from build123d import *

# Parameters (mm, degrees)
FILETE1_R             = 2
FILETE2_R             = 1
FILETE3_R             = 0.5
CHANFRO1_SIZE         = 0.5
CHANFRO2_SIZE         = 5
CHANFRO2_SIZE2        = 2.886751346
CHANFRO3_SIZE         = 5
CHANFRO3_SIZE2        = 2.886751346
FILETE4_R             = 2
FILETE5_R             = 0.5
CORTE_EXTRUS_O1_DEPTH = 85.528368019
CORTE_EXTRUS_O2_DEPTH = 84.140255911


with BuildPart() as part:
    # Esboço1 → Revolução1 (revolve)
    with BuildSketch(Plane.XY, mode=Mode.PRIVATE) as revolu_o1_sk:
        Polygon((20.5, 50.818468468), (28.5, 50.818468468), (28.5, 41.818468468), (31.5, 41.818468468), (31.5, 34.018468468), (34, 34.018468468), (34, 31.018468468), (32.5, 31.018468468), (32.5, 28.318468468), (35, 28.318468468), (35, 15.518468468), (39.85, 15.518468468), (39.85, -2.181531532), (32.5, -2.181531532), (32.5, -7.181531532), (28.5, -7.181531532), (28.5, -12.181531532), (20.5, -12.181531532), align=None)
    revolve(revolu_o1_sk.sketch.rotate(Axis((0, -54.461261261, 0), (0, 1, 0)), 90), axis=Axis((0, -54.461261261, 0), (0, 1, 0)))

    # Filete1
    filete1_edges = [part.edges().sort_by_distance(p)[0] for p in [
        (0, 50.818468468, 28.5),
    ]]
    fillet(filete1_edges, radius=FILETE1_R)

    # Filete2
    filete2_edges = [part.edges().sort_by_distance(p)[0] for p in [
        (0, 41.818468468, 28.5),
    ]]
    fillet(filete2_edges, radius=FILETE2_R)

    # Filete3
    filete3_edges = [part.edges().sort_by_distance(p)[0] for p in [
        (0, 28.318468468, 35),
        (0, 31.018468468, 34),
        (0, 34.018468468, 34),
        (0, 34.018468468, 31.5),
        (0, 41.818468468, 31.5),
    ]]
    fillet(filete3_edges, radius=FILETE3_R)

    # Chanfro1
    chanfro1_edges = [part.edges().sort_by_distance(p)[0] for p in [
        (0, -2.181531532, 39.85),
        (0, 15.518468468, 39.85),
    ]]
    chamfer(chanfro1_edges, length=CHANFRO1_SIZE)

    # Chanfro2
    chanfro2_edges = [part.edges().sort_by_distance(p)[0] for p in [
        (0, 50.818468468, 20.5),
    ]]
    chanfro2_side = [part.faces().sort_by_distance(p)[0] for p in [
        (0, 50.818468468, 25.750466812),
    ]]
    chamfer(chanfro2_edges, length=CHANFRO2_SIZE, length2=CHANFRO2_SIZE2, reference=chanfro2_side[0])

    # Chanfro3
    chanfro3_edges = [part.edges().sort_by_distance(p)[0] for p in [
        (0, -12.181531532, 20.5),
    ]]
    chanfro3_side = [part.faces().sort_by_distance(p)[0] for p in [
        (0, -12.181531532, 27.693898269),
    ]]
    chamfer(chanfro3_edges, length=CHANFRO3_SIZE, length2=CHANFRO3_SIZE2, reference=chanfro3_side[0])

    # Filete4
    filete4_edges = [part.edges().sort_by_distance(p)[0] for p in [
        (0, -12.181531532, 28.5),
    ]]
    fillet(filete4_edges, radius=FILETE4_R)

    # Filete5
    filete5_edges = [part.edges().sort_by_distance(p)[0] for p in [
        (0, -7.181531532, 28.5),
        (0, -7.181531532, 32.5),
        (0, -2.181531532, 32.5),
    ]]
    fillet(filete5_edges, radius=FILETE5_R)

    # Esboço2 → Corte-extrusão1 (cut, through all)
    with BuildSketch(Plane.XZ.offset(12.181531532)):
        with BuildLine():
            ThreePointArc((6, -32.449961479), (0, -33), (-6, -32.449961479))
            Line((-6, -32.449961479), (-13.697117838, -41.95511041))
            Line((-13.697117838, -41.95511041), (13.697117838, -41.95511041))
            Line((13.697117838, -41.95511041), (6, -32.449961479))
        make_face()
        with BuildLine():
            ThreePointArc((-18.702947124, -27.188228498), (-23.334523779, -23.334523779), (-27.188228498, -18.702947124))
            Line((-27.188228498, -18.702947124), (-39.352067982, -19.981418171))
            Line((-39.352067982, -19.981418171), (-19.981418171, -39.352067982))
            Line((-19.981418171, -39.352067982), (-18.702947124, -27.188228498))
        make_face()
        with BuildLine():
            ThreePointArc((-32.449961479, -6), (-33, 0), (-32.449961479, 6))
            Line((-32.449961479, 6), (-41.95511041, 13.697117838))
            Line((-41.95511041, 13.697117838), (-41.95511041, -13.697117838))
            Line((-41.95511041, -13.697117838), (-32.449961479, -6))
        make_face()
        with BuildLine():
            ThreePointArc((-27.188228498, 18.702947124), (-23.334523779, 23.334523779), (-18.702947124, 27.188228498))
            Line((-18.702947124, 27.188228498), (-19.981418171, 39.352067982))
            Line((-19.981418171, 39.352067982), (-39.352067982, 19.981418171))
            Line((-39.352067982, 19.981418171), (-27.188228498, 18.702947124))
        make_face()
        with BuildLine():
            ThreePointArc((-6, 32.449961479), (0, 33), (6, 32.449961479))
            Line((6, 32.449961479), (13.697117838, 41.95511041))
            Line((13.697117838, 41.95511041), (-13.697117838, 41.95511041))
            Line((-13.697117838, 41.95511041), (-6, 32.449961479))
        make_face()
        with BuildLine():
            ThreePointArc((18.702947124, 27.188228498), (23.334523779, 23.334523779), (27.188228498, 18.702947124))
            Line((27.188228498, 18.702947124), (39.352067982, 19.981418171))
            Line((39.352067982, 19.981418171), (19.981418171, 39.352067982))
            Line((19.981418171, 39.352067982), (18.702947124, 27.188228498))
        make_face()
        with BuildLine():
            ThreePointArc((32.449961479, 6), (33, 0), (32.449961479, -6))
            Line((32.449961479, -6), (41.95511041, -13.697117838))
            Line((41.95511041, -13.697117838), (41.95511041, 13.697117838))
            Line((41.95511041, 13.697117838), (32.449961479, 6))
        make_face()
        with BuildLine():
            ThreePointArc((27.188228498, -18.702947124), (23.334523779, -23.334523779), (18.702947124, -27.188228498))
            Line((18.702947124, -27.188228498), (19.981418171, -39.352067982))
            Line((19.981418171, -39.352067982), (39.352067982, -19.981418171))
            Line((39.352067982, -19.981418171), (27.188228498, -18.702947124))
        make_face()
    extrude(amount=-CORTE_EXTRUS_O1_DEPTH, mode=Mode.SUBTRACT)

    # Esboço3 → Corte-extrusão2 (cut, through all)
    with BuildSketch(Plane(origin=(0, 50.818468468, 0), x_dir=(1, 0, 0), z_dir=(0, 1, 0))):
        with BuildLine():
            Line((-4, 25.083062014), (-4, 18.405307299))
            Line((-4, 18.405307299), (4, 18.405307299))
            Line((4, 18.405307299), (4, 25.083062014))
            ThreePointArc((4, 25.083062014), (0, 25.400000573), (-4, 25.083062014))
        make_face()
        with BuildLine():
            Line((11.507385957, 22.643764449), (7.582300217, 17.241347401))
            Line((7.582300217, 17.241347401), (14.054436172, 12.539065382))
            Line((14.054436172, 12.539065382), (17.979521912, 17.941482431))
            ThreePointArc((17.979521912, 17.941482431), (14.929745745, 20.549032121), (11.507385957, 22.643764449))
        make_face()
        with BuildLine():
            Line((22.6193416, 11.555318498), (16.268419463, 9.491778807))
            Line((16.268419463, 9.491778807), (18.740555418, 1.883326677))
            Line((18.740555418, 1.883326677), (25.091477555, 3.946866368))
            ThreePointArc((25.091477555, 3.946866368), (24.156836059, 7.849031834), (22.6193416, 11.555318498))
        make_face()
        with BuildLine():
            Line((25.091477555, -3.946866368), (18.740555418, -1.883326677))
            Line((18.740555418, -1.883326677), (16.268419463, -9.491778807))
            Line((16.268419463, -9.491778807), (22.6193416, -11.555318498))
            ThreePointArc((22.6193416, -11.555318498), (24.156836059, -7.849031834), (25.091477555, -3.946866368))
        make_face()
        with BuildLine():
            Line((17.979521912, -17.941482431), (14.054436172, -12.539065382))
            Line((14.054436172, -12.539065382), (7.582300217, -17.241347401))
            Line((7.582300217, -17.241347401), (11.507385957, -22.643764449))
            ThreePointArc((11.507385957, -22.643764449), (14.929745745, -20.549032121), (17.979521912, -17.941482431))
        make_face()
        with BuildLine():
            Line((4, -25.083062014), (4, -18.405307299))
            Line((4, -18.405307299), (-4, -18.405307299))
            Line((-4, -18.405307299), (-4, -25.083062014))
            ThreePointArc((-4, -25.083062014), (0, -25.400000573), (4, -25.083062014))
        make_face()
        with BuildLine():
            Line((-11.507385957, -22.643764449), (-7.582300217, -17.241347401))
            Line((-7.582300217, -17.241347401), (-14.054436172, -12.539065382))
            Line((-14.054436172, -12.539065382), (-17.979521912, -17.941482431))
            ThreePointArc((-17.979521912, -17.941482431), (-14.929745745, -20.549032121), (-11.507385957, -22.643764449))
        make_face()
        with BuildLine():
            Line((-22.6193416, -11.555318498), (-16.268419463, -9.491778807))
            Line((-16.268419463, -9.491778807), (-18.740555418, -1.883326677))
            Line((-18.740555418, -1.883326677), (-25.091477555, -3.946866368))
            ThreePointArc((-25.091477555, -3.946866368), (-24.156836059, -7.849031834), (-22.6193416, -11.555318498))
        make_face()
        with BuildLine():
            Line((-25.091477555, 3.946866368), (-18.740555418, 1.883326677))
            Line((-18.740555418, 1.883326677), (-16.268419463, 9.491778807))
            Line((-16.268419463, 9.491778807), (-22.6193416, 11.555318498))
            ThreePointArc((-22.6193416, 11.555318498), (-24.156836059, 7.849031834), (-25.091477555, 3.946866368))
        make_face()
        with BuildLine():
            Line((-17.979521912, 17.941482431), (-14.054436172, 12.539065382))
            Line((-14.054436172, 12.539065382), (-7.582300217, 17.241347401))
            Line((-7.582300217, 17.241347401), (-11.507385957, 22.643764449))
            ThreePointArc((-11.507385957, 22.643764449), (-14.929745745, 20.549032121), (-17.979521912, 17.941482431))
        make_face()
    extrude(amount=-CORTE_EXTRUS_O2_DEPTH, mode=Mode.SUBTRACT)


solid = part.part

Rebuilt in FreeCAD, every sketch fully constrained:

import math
import FreeCAD as App
import Part
import Sketcher

V = App.Vector
Q = App.Units.Quantity


def edges_at(feature, points):
    """Names of the edges that pass closest to the given points."""
    edges = feature.Shape.Edges
    near = lambda p: min(range(len(edges)), key=lambda i: edges[i].distToShape(Part.Vertex(*p))[0])
    return sorted({f"Edge{near(p) + 1}" for p in points})


def add_polygon(sketch, points):
    """Adds a closed chain of lines whose ends are joined by coincident constraints."""
    first, n = sketch.GeometryCount, len(points)
    for a, b in zip(points, points[1:] + points[:1]):
        sketch.addGeometry(Part.LineSegment(App.Vector(*a, 0), App.Vector(*b, 0)), False)
    for i in range(n):
        sketch.addConstraint(Sketcher.Constraint("Coincident", first + i, 2, first + (i + 1) % n, 1))

doc = App.newDocument("Part")
body = doc.addObject("PartDesign::Body", "Body")

# Sketch on XY plane
sketch1 = body.newObject("Sketcher::SketchObject", "Sketch")
sketch1.AttachmentSupport = (doc.getObject("XY_Plane"), [""])
sketch1.MapMode = "FlatFace"
add_polygon(sketch1, [(28.5, 50.8), (20.5, 50.8), (20.5, -12.2), (28.5, -12.2), (28.5, -7.2), (32.5, -7.2), (32.5, -2.2), (39.9, -2.2), (39.9, 15.5), (35, 15.5), (35, 28.3), (32.5, 28.3), (32.5, 31), (34, 31), (34, 34), (31.5, 34), (31.5, 41.8), (28.5, 41.8)])  # lines 0-17
sketch1.addConstraint(Sketcher.Constraint("Horizontal", 0))
sketch1.addConstraint(Sketcher.Constraint("Vertical", 1))
sketch1.addConstraint(Sketcher.Constraint("Horizontal", 2))
sketch1.addConstraint(Sketcher.Constraint("Vertical", 3))
sketch1.addConstraint(Sketcher.Constraint("Horizontal", 4))
sketch1.addConstraint(Sketcher.Constraint("Vertical", 5))
sketch1.addConstraint(Sketcher.Constraint("Horizontal", 6))
sketch1.addConstraint(Sketcher.Constraint("Vertical", 7))
sketch1.addConstraint(Sketcher.Constraint("Horizontal", 8))
sketch1.addConstraint(Sketcher.Constraint("Vertical", 9))
sketch1.addConstraint(Sketcher.Constraint("Horizontal", 10))
sketch1.addConstraint(Sketcher.Constraint("Vertical", 11))
sketch1.addConstraint(Sketcher.Constraint("Horizontal", 12))
sketch1.addConstraint(Sketcher.Constraint("Vertical", 13))
sketch1.addConstraint(Sketcher.Constraint("Horizontal", 14))
sketch1.addConstraint(Sketcher.Constraint("Vertical", 15))
sketch1.addConstraint(Sketcher.Constraint("Horizontal", 16))
sketch1.addConstraint(Sketcher.Constraint("Vertical", 17))
sketch1.addConstraint(Sketcher.Constraint("Vertical", 5, 2, 10, 2))
sketch1.addConstraint(Sketcher.Constraint("Vertical", 3, 2, 16, 2))
sketch1.addConstraint(Sketcher.Constraint("Equal", 10, 14))
sketch1.addConstraint(Sketcher.Constraint("Equal", 3, 5))
sketch1.addConstraint(Sketcher.Constraint("Equal", 16, 13))
sketch1.addConstraint(Sketcher.Constraint("DistanceX", 0, 2, 0, 1, Q("8 mm")))
sketch1.addConstraint(Sketcher.Constraint("DistanceX", 4, 1, 4, 2, Q("4 mm")))
sketch1.addConstraint(Sketcher.Constraint("DistanceX", 16, 2, 16, 1, Q("3 mm")))
sketch1.addConstraint(Sketcher.Constraint("DistanceY", 1, 2, 1, 1, Q("63 mm")))
sketch1.addConstraint(Sketcher.Constraint("DistanceY", 3, 1, 3, 2, Q("5 mm")))
sketch1.addConstraint(Sketcher.Constraint("DistanceY", 17, 1, 17, 2, Q("9 mm")))
sketch1.addConstraint(Sketcher.Constraint("DistanceX", 10, 2, 10, 1, Q("2.5 mm")))
sketch1.addConstraint(Sketcher.Constraint("DistanceY", 7, 1, 7, 2, Q("17.7 mm")))
sketch1.addConstraint(Sketcher.Constraint("DistanceY", 9, 1, 9, 2, Q("12.8 mm")))
sketch1.addConstraint(Sketcher.Constraint("DistanceY", 11, 1, 11, 2, Q("2.7 mm")))
sketch1.addConstraint(Sketcher.Constraint("DistanceX", -1, 1, 8, 2, Q("35 mm")))
sketch1.addConstraint(Sketcher.Constraint("DistanceX", 6, 1, 6, 2, Q("7.35 mm")))
sketch1.addConstraint(Sketcher.Constraint("DistanceY", -1, 1, 0, 2, Q("50.818468 mm")))
revolution = body.newObject("PartDesign::Revolution", "Revolution")
revolution.Profile = sketch1
revolution.ReferenceAxis = (sketch1, ["V_Axis"])
revolution.Angle = 360
doc.recompute()

fillet = body.newObject("PartDesign::Fillet", "Fillet")
fillet.Base = (revolution, edges_at(revolution, [(0, 50.818, 28.5)]))
fillet.Radius = 2
doc.recompute()

fillet2 = body.newObject("PartDesign::Fillet", "Fillet001")
fillet2.Base = (fillet, edges_at(fillet, [(0, 41.818, 28.5)]))
fillet2.Radius = 1
doc.recompute()

fillet3 = body.newObject("PartDesign::Fillet", "Fillet002")
fillet3.Base = (fillet2, edges_at(fillet2, [
    (0, 28.318, 35),
    (0, 31.018, 34),
    (0, 34.018, 34),
    (0, 34.018, 31.5),
    (0, 41.818, 31.5),
]))
fillet3.Radius = 0.5
doc.recompute()

chamfer = body.newObject("PartDesign::Chamfer", "Chamfer")
chamfer.Base = (fillet3, edges_at(fillet3, [(0, -2.182, 39.85), (0, 15.518, 39.85)]))
chamfer.Size = 0.5
doc.recompute()

chamfer2 = body.newObject("PartDesign::Chamfer", "Chamfer001")
chamfer2.Base = (chamfer, edges_at(chamfer, [(0, 50.818, 20.5)]))
chamfer2.ChamferType = "Two distances"
chamfer2.Size = 5
chamfer2.Size2 = 2.886751
chamfer2.FlipDirection = True
doc.recompute()

chamfer3 = body.newObject("PartDesign::Chamfer", "Chamfer002")
chamfer3.Base = (chamfer2, edges_at(chamfer2, [(0, -12.182, 20.5)]))
chamfer3.ChamferType = "Two distances"
chamfer3.Size = 5
chamfer3.Size2 = 2.886751
chamfer3.FlipDirection = True
doc.recompute()

fillet4 = body.newObject("PartDesign::Fillet", "Fillet003")
fillet4.Base = (chamfer3, edges_at(chamfer3, [(0, -12.182, 28.5)]))
fillet4.Radius = 2
doc.recompute()

fillet5 = body.newObject("PartDesign::Fillet", "Fillet004")
fillet5.Base = (fillet4, edges_at(fillet4, [(0, -7.182, 28.5), (0, -7.182, 32.5), (0, -2.182, 32.5)]))
fillet5.Radius = 0.5

# Sketch on XZ plane
sketch2 = body.newObject("Sketcher::SketchObject", "Sketch001")
sketch2.AttachmentSupport = (doc.getObject("XZ_Plane"), [""])
sketch2.MapMode = "FlatFace"
sketch2.AttachmentOffset = App.Placement(V(0, 0, 12.181532), App.Rotation())
sketch2.addGeometry(Part.ArcOfCircle(Part.Circle(V(0, 0, 0), V(0, 0, 1), 33), math.radians(-100), math.radians(-80)), False)
sketch2.addGeometry(Part.LineSegment(V(-6, -32, 0), V(-14, -42, 0)), False)
sketch2.addGeometry(Part.LineSegment(V(-14, -42, 0), V(14, -42, 0)), False)
sketch2.addGeometry(Part.LineSegment(V(14, -42, 0), V(6, -32, 0)), False)
sketch2.addGeometry(Part.ArcOfCircle(Part.Circle(V(0, 0, 0), V(0, 0, 1), 33), math.radians(-145), math.radians(-125)), False)
sketch2.addGeometry(Part.LineSegment(V(-27, -19, 0), V(-39, -20, 0)), False)
sketch2.addGeometry(Part.LineSegment(V(-39, -20, 0), V(-20, -39, 0)), False)
sketch2.addGeometry(Part.LineSegment(V(-20, -39, 0), V(-19, -27, 0)), False)
sketch2.addGeometry(Part.ArcOfCircle(Part.Circle(V(0, 0, 0), V(0, 0, 1), 33), math.radians(170), math.radians(190)), False)
sketch2.addGeometry(Part.LineSegment(V(-32, 6, 0), V(-42, 14, 0)), False)
sketch2.addGeometry(Part.LineSegment(V(-42, 14, 0), V(-42, -14, 0)), False)
sketch2.addGeometry(Part.LineSegment(V(-42, -14, 0), V(-32, -6, 0)), False)
sketch2.addGeometry(Part.ArcOfCircle(Part.Circle(V(0, 0, 0), V(0, 0, 1), 33), math.radians(125), math.radians(145)), False)
sketch2.addGeometry(Part.LineSegment(V(-19, 27, 0), V(-20, 39, 0)), False)
sketch2.addGeometry(Part.LineSegment(V(-20, 39, 0), V(-39, 20, 0)), False)
sketch2.addGeometry(Part.LineSegment(V(-39, 20, 0), V(-27, 19, 0)), False)
sketch2.addGeometry(Part.ArcOfCircle(Part.Circle(V(0, 0, 0), V(0, 0, 1), 33), math.radians(80), math.radians(100)), False)
sketch2.addGeometry(Part.LineSegment(V(6, 32, 0), V(14, 42, 0)), False)
sketch2.addGeometry(Part.LineSegment(V(14, 42, 0), V(-14, 42, 0)), False)
sketch2.addGeometry(Part.LineSegment(V(-14, 42, 0), V(-6, 32, 0)), False)
sketch2.addGeometry(Part.ArcOfCircle(Part.Circle(V(0, 0, 0), V(0, 0, 1), 33), math.radians(35), math.radians(55)), False)
sketch2.addGeometry(Part.LineSegment(V(27, 19, 0), V(39, 20, 0)), False)
sketch2.addGeometry(Part.LineSegment(V(39, 20, 0), V(20, 39, 0)), False)
sketch2.addGeometry(Part.LineSegment(V(20, 39, 0), V(19, 27, 0)), False)
sketch2.addGeometry(Part.ArcOfCircle(Part.Circle(V(0, 0, 0), V(0, 0, 1), 33), math.radians(-10), math.radians(10)), False)
sketch2.addGeometry(Part.LineSegment(V(32, -6, 0), V(42, -14, 0)), False)
sketch2.addGeometry(Part.LineSegment(V(42, -14, 0), V(42, 14, 0)), False)
sketch2.addGeometry(Part.LineSegment(V(42, 14, 0), V(32, 6, 0)), False)
sketch2.addGeometry(Part.ArcOfCircle(Part.Circle(V(0, 0, 0), V(0, 0, 1), 33), math.radians(-55), math.radians(-35)), False)
sketch2.addGeometry(Part.LineSegment(V(19, -27, 0), V(20, -39, 0)), False)
sketch2.addGeometry(Part.LineSegment(V(20, -39, 0), V(39, -20, 0)), False)
sketch2.addGeometry(Part.LineSegment(V(39, -20, 0), V(27, -19, 0)), False)
sketch2.addConstraint(Sketcher.Constraint("Coincident", 0, 1, 1, 1))
sketch2.addConstraint(Sketcher.Constraint("Coincident", 1, 2, 2, 1))
sketch2.addConstraint(Sketcher.Constraint("Coincident", 2, 2, 3, 1))
sketch2.addConstraint(Sketcher.Constraint("Coincident", 3, 2, 0, 2))
sketch2.addConstraint(Sketcher.Constraint("Coincident", 4, 1, 5, 1))
sketch2.addConstraint(Sketcher.Constraint("Coincident", 5, 2, 6, 1))
sketch2.addConstraint(Sketcher.Constraint("Coincident", 6, 2, 7, 1))
sketch2.addConstraint(Sketcher.Constraint("Coincident", 7, 2, 4, 2))
sketch2.addConstraint(Sketcher.Constraint("Coincident", 8, 1, 9, 1))
sketch2.addConstraint(Sketcher.Constraint("Coincident", 9, 2, 10, 1))
sketch2.addConstraint(Sketcher.Constraint("Coincident", 10, 2, 11, 1))
sketch2.addConstraint(Sketcher.Constraint("Coincident", 11, 2, 8, 2))
sketch2.addConstraint(Sketcher.Constraint("Coincident", 12, 1, 13, 1))
sketch2.addConstraint(Sketcher.Constraint("Coincident", 13, 2, 14, 1))
sketch2.addConstraint(Sketcher.Constraint("Coincident", 14, 2, 15, 1))
sketch2.addConstraint(Sketcher.Constraint("Coincident", 15, 2, 12, 2))
sketch2.addConstraint(Sketcher.Constraint("Coincident", 16, 1, 17, 1))
sketch2.addConstraint(Sketcher.Constraint("Coincident", 17, 2, 18, 1))
sketch2.addConstraint(Sketcher.Constraint("Coincident", 18, 2, 19, 1))
sketch2.addConstraint(Sketcher.Constraint("Coincident", 19, 2, 16, 2))
sketch2.addConstraint(Sketcher.Constraint("Coincident", 20, 1, 21, 1))
sketch2.addConstraint(Sketcher.Constraint("Coincident", 21, 2, 22, 1))
sketch2.addConstraint(Sketcher.Constraint("Coincident", 22, 2, 23, 1))
sketch2.addConstraint(Sketcher.Constraint("Coincident", 23, 2, 20, 2))
sketch2.addConstraint(Sketcher.Constraint("Coincident", 24, 1, 25, 1))
sketch2.addConstraint(Sketcher.Constraint("Coincident", 25, 2, 26, 1))
sketch2.addConstraint(Sketcher.Constraint("Coincident", 26, 2, 27, 1))
sketch2.addConstraint(Sketcher.Constraint("Coincident", 27, 2, 24, 2))
sketch2.addConstraint(Sketcher.Constraint("Coincident", 28, 1, 29, 1))
sketch2.addConstraint(Sketcher.Constraint("Coincident", 29, 2, 30, 1))
sketch2.addConstraint(Sketcher.Constraint("Coincident", 30, 2, 31, 1))
sketch2.addConstraint(Sketcher.Constraint("Coincident", 31, 2, 28, 2))
sketch2.addConstraint(Sketcher.Constraint("Horizontal", 2))
sketch2.addConstraint(Sketcher.Constraint("Vertical", 10))
sketch2.addConstraint(Sketcher.Constraint("Horizontal", 18))
sketch2.addConstraint(Sketcher.Constraint("Vertical", 26))
sketch2.addConstraint(Sketcher.Constraint("Coincident", 0, 3, -1, 1))
sketch2.addConstraint(Sketcher.Constraint("Coincident", 4, 3, -1, 1))
sketch2.addConstraint(Sketcher.Constraint("Coincident", 8, 3, -1, 1))
sketch2.addConstraint(Sketcher.Constraint("Coincident", 12, 3, -1, 1))
sketch2.addConstraint(Sketcher.Constraint("Coincident", 16, 3, -1, 1))
sketch2.addConstraint(Sketcher.Constraint("Coincident", 20, 3, -1, 1))
sketch2.addConstraint(Sketcher.Constraint("Coincident", 24, 3, -1, 1))
sketch2.addConstraint(Sketcher.Constraint("Coincident", 28, 3, -1, 1))
sketch2.addConstraint(Sketcher.Constraint("Equal", 0, 4))
sketch2.addConstraint(Sketcher.Constraint("Equal", 4, 8))
sketch2.addConstraint(Sketcher.Constraint("Equal", 8, 12))
sketch2.addConstraint(Sketcher.Constraint("Equal", 12, 16))
sketch2.addConstraint(Sketcher.Constraint("Equal", 16, 20))
sketch2.addConstraint(Sketcher.Constraint("Equal", 20, 24))
sketch2.addConstraint(Sketcher.Constraint("Equal", 24, 28))
sketch2.addConstraint(Sketcher.Constraint("Symmetric", 1, 2, 17, 2, -1, 1))
sketch2.addConstraint(Sketcher.Constraint("Symmetric", 5, 2, 21, 2, -1, 1))
sketch2.addConstraint(Sketcher.Constraint("Symmetric", 6, 2, 22, 2, -1, 1))
sketch2.addConstraint(Sketcher.Constraint("Symmetric", 9, 2, 25, 2, -1, 1))
sketch2.addConstraint(Sketcher.Constraint("Symmetric", 13, 2, 29, 2, -1, 1))
sketch2.addConstraint(Sketcher.Constraint("Symmetric", 14, 2, 30, 2, -1, 1))
sketch2.addConstraint(Sketcher.Constraint("Symmetric", 14, 2, 21, 2, -2))
sketch2.addConstraint(Sketcher.Constraint("Symmetric", 13, 2, 22, 2, -2))
sketch2.addConstraint(Sketcher.Constraint("Perpendicular", 1, 9))
sketch2.addConstraint(Sketcher.Constraint("Perpendicular", 3, 11))
sketch2.addConstraint(Sketcher.Constraint("Perpendicular", 5, 13))
sketch2.addConstraint(Sketcher.Constraint("Perpendicular", 6, 14))
sketch2.addConstraint(Sketcher.Constraint("Perpendicular", 7, 15))
sketch2.addConstraint(Sketcher.Constraint("Perpendicular", 9, 17))
sketch2.addConstraint(Sketcher.Constraint("Perpendicular", 11, 19))
sketch2.addConstraint(Sketcher.Constraint("Perpendicular", 13, 21))
sketch2.addConstraint(Sketcher.Constraint("Perpendicular", 15, 23))
sketch2.addConstraint(Sketcher.Constraint("Perpendicular", 17, 25))
sketch2.addConstraint(Sketcher.Constraint("Perpendicular", 19, 27))
sketch2.addConstraint(Sketcher.Constraint("Perpendicular", 21, 29))
sketch2.addConstraint(Sketcher.Constraint("Perpendicular", 23, 31))
sketch2.addConstraint(Sketcher.Constraint("Horizontal", 0, 1, 3, 2))
sketch2.addConstraint(Sketcher.Constraint("Horizontal", 16, 1, 19, 2))
sketch2.addConstraint(Sketcher.Constraint("Horizontal", 15, 2, 20, 1))
sketch2.addConstraint(Sketcher.Constraint("Horizontal", 11, 2, 24, 1))
sketch2.addConstraint(Sketcher.Constraint("Horizontal", 10, 2, 25, 2))
sketch2.addConstraint(Sketcher.Constraint("Horizontal", 9, 2, 26, 2))
sketch2.addConstraint(Sketcher.Constraint("Equal", 18, 10))
sketch2.addConstraint(Sketcher.Constraint("Equal", 3, 5))
sketch2.addConstraint(Sketcher.Constraint("Equal", 5, 7))
sketch2.addConstraint(Sketcher.Constraint("Equal", 7, 9))
sketch2.addConstraint(Sketcher.Constraint("Radius", 0, Q("33 mm")))
sketch2.addConstraint(Sketcher.Constraint("Angle", 1, Q("-129 deg")))
sketch2.addConstraint(Sketcher.Constraint("Angle", 5, Q("-174 deg")))
sketch2.addConstraint(Sketcher.Constraint("DistanceX", 0, 1, -1, 1, Q("6 mm")))
sketch2.addConstraint(Sketcher.Constraint("DistanceX", 6, 2, 1, 2, Q("6.2843 mm")))
sketch2.addConstraint(Sketcher.Constraint("Distance", 1, Q("12.230841 mm")))
pocket1 = body.newObject("PartDesign::Pocket", "Pocket")
pocket1.Profile = sketch2
pocket1.Type = "ThroughAll"

# Sketch on XZ plane
sketch3 = body.newObject("Sketcher::SketchObject", "Sketch002")
sketch3.AttachmentSupport = (doc.getObject("XZ_Plane"), [""])
sketch3.MapMode = "FlatFace"
sketch3.AttachmentOffset = App.Placement(V(0, 0, -50.818468), App.Rotation())
sketch3.addGeometry(Part.LineSegment(V(-4, -25, 0), V(-4, -18, 0)), False)
sketch3.addGeometry(Part.LineSegment(V(-4, -18, 0), V(4, -18, 0)), False)
sketch3.addGeometry(Part.LineSegment(V(4, -18, 0), V(4, -25, 0)), False)
sketch3.addGeometry(Part.ArcOfCircle(Part.Circle(V(0, 0, 0), V(0, 0, 1), 25), math.radians(-99.06), math.radians(-80.94)), False)
sketch3.addGeometry(Part.LineSegment(V(12, -23, 0), V(8, -17, 0)), False)
sketch3.addGeometry(Part.LineSegment(V(8, -17, 0), V(14, -13, 0)), False)
sketch3.addGeometry(Part.LineSegment(V(14, -13, 0), V(18, -18, 0)), False)
sketch3.addGeometry(Part.ArcOfCircle(Part.Circle(V(0, 0, 0), V(0, 0, 1), 25), math.radians(-63.06), math.radians(-44.94)), False)
sketch3.addGeometry(Part.LineSegment(V(23, -12, 0), V(16, -9, 0)), False)
sketch3.addGeometry(Part.LineSegment(V(16, -9, 0), V(19, -2, 0)), False)
sketch3.addGeometry(Part.LineSegment(V(19, -2, 0), V(25, -4, 0)), False)
sketch3.addGeometry(Part.ArcOfCircle(Part.Circle(V(0, 0, 0), V(0, 0, 1), 25), math.radians(-27.06), math.radians(-8.94)), False)
sketch3.addGeometry(Part.LineSegment(V(25, 4, 0), V(19, 2, 0)), False)
sketch3.addGeometry(Part.LineSegment(V(19, 2, 0), V(16, 9, 0)), False)
sketch3.addGeometry(Part.LineSegment(V(16, 9, 0), V(23, 12, 0)), False)
sketch3.addGeometry(Part.ArcOfCircle(Part.Circle(V(0, 0, 0), V(0, 0, 1), 25), math.radians(8.94), math.radians(27.06)), False)
sketch3.addGeometry(Part.LineSegment(V(18, 18, 0), V(14, 13, 0)), False)
sketch3.addGeometry(Part.LineSegment(V(14, 13, 0), V(8, 17, 0)), False)
sketch3.addGeometry(Part.LineSegment(V(8, 17, 0), V(12, 23, 0)), False)
sketch3.addGeometry(Part.ArcOfCircle(Part.Circle(V(0, 0, 0), V(0, 0, 1), 25), math.radians(44.94), math.radians(63.06)), False)
sketch3.addGeometry(Part.LineSegment(V(4, 25, 0), V(4, 18, 0)), False)
sketch3.addGeometry(Part.LineSegment(V(4, 18, 0), V(-4, 18, 0)), False)
sketch3.addGeometry(Part.LineSegment(V(-4, 18, 0), V(-4, 25, 0)), False)
sketch3.addGeometry(Part.ArcOfCircle(Part.Circle(V(0, 0, 0), V(0, 0, 1), 25), math.radians(80.94), math.radians(99.06)), False)
sketch3.addGeometry(Part.LineSegment(V(-12, 23, 0), V(-8, 17, 0)), False)
sketch3.addGeometry(Part.LineSegment(V(-8, 17, 0), V(-14, 13, 0)), False)
sketch3.addGeometry(Part.LineSegment(V(-14, 13, 0), V(-18, 18, 0)), False)
sketch3.addGeometry(Part.ArcOfCircle(Part.Circle(V(0, 0, 0), V(0, 0, 1), 25), math.radians(116.94), math.radians(135.06)), False)
sketch3.addGeometry(Part.LineSegment(V(-23, 12, 0), V(-16, 9, 0)), False)
sketch3.addGeometry(Part.LineSegment(V(-16, 9, 0), V(-19, 2, 0)), False)
sketch3.addGeometry(Part.LineSegment(V(-19, 2, 0), V(-25, 4, 0)), False)
sketch3.addGeometry(Part.ArcOfCircle(Part.Circle(V(0, 0, 0), V(0, 0, 1), 25), math.radians(152.94), math.radians(171.06)), False)
sketch3.addGeometry(Part.LineSegment(V(-25, -4, 0), V(-19, -2, 0)), False)
sketch3.addGeometry(Part.LineSegment(V(-19, -2, 0), V(-16, -9, 0)), False)
sketch3.addGeometry(Part.LineSegment(V(-16, -9, 0), V(-23, -12, 0)), False)
sketch3.addGeometry(Part.ArcOfCircle(Part.Circle(V(0, 0, 0), V(0, 0, 1), 25), math.radians(-171.06), math.radians(-152.94)), False)
sketch3.addGeometry(Part.LineSegment(V(-18, -18, 0), V(-14, -13, 0)), False)
sketch3.addGeometry(Part.LineSegment(V(-14, -13, 0), V(-8, -17, 0)), False)
sketch3.addGeometry(Part.LineSegment(V(-8, -17, 0), V(-12, -23, 0)), False)
sketch3.addGeometry(Part.ArcOfCircle(Part.Circle(V(0, 0, 0), V(0, 0, 1), 25), math.radians(-135.06), math.radians(-116.94)), False)
sketch3.addConstraint(Sketcher.Constraint("Coincident", 0, 2, 1, 1))
sketch3.addConstraint(Sketcher.Constraint("Coincident", 1, 2, 2, 1))
sketch3.addConstraint(Sketcher.Constraint("Coincident", 2, 2, 3, 2))
sketch3.addConstraint(Sketcher.Constraint("Coincident", 3, 1, 0, 1))
sketch3.addConstraint(Sketcher.Constraint("Coincident", 4, 2, 5, 1))
sketch3.addConstraint(Sketcher.Constraint("Coincident", 5, 2, 6, 1))
sketch3.addConstraint(Sketcher.Constraint("Coincident", 6, 2, 7, 2))
sketch3.addConstraint(Sketcher.Constraint("Coincident", 7, 1, 4, 1))
sketch3.addConstraint(Sketcher.Constraint("Coincident", 8, 2, 9, 1))
sketch3.addConstraint(Sketcher.Constraint("Coincident", 9, 2, 10, 1))
sketch3.addConstraint(Sketcher.Constraint("Coincident", 10, 2, 11, 2))
sketch3.addConstraint(Sketcher.Constraint("Coincident", 11, 1, 8, 1))
sketch3.addConstraint(Sketcher.Constraint("Coincident", 12, 2, 13, 1))
sketch3.addConstraint(Sketcher.Constraint("Coincident", 13, 2, 14, 1))
sketch3.addConstraint(Sketcher.Constraint("Coincident", 14, 2, 15, 2))
sketch3.addConstraint(Sketcher.Constraint("Coincident", 15, 1, 12, 1))
sketch3.addConstraint(Sketcher.Constraint("Coincident", 16, 2, 17, 1))
sketch3.addConstraint(Sketcher.Constraint("Coincident", 17, 2, 18, 1))
sketch3.addConstraint(Sketcher.Constraint("Coincident", 18, 2, 19, 2))
sketch3.addConstraint(Sketcher.Constraint("Coincident", 19, 1, 16, 1))
sketch3.addConstraint(Sketcher.Constraint("Coincident", 20, 2, 21, 1))
sketch3.addConstraint(Sketcher.Constraint("Coincident", 21, 2, 22, 1))
sketch3.addConstraint(Sketcher.Constraint("Coincident", 22, 2, 23, 2))
sketch3.addConstraint(Sketcher.Constraint("Coincident", 23, 1, 20, 1))
sketch3.addConstraint(Sketcher.Constraint("Coincident", 24, 2, 25, 1))
sketch3.addConstraint(Sketcher.Constraint("Coincident", 25, 2, 26, 1))
sketch3.addConstraint(Sketcher.Constraint("Coincident", 26, 2, 27, 2))
sketch3.addConstraint(Sketcher.Constraint("Coincident", 27, 1, 24, 1))
sketch3.addConstraint(Sketcher.Constraint("Coincident", 28, 2, 29, 1))
sketch3.addConstraint(Sketcher.Constraint("Coincident", 29, 2, 30, 1))
sketch3.addConstraint(Sketcher.Constraint("Coincident", 30, 2, 31, 2))
sketch3.addConstraint(Sketcher.Constraint("Coincident", 31, 1, 28, 1))
sketch3.addConstraint(Sketcher.Constraint("Coincident", 32, 2, 33, 1))
sketch3.addConstraint(Sketcher.Constraint("Coincident", 33, 2, 34, 1))
sketch3.addConstraint(Sketcher.Constraint("Coincident", 34, 2, 35, 2))
sketch3.addConstraint(Sketcher.Constraint("Coincident", 35, 1, 32, 1))
sketch3.addConstraint(Sketcher.Constraint("Coincident", 36, 2, 37, 1))
sketch3.addConstraint(Sketcher.Constraint("Coincident", 37, 2, 38, 1))
sketch3.addConstraint(Sketcher.Constraint("Coincident", 38, 2, 39, 2))
sketch3.addConstraint(Sketcher.Constraint("Coincident", 39, 1, 36, 1))
sketch3.addConstraint(Sketcher.Constraint("Vertical", 0))
sketch3.addConstraint(Sketcher.Constraint("Horizontal", 1))
sketch3.addConstraint(Sketcher.Constraint("Vertical", 2))
sketch3.addConstraint(Sketcher.Constraint("Vertical", 20))
sketch3.addConstraint(Sketcher.Constraint("Horizontal", 21))
sketch3.addConstraint(Sketcher.Constraint("Vertical", 22))
sketch3.addConstraint(Sketcher.Constraint("Equal", 3, 7))
sketch3.addConstraint(Sketcher.Constraint("Equal", 7, 11))
sketch3.addConstraint(Sketcher.Constraint("Equal", 11, 15))
sketch3.addConstraint(Sketcher.Constraint("Equal", 15, 19))
sketch3.addConstraint(Sketcher.Constraint("Equal", 19, 23))
sketch3.addConstraint(Sketcher.Constraint("Equal", 23, 27))
sketch3.addConstraint(Sketcher.Constraint("Equal", 27, 31))
sketch3.addConstraint(Sketcher.Constraint("Equal", 31, 35))
sketch3.addConstraint(Sketcher.Constraint("Equal", 35, 39))
sketch3.addConstraint(Sketcher.Constraint("Symmetric", 3, 3, 23, 3, -1, 1))
sketch3.addConstraint(Sketcher.Constraint("Symmetric", 7, 3, 27, 3, -1, 1))
sketch3.addConstraint(Sketcher.Constraint("Symmetric", 11, 3, 31, 3, -1, 1))
sketch3.addConstraint(Sketcher.Constraint("Symmetric", 15, 3, 35, 3, -1, 1))
sketch3.addConstraint(Sketcher.Constraint("Symmetric", 19, 3, 39, 3, -1, 1))
sketch3.addConstraint(Sketcher.Constraint("Symmetric", 0, 2, 20, 2, -1, 1))
sketch3.addConstraint(Sketcher.Constraint("Symmetric", 4, 2, 24, 2, -1, 1))
sketch3.addConstraint(Sketcher.Constraint("Symmetric", 5, 2, 25, 2, -1, 1))
sketch3.addConstraint(Sketcher.Constraint("Symmetric", 8, 2, 28, 2, -1, 1))
sketch3.addConstraint(Sketcher.Constraint("Symmetric", 9, 2, 29, 2, -1, 1))
sketch3.addConstraint(Sketcher.Constraint("Symmetric", 12, 2, 32, 2, -1, 1))
sketch3.addConstraint(Sketcher.Constraint("Symmetric", 13, 2, 33, 2, -1, 1))
sketch3.addConstraint(Sketcher.Constraint("Symmetric", 16, 2, 36, 2, -1, 1))
sketch3.addConstraint(Sketcher.Constraint("Symmetric", 17, 2, 37, 2, -1, 1))
sketch3.addConstraint(Sketcher.Constraint("Symmetric", 19, 3, 27, 3, -2))
sketch3.addConstraint(Sketcher.Constraint("Symmetric", 15, 3, 31, 3, -2))
sketch3.addConstraint(Sketcher.Constraint("Symmetric", 2, 2, 3, 1, -2))
sketch3.addConstraint(Sketcher.Constraint("Symmetric", 17, 2, 24, 2, -2))
sketch3.addConstraint(Sketcher.Constraint("Symmetric", 16, 2, 25, 2, -2))
sketch3.addConstraint(Sketcher.Constraint("Symmetric", 13, 2, 28, 2, -2))
sketch3.addConstraint(Sketcher.Constraint("Symmetric", 12, 2, 29, 2, -2))
sketch3.addConstraint(Sketcher.Constraint("Perpendicular", 4, 5))
sketch3.addConstraint(Sketcher.Constraint("Perpendicular", 5, 6))
sketch3.addConstraint(Sketcher.Constraint("Perpendicular", 8, 9))
sketch3.addConstraint(Sketcher.Constraint("Perpendicular", 9, 10))
sketch3.addConstraint(Sketcher.Constraint("Perpendicular", 12, 13))
sketch3.addConstraint(Sketcher.Constraint("Perpendicular", 13, 14))
sketch3.addConstraint(Sketcher.Constraint("Perpendicular", 16, 17))
sketch3.addConstraint(Sketcher.Constraint("Perpendicular", 17, 18))
sketch3.addConstraint(Sketcher.Constraint("Parallel", 6, 24))
sketch3.addConstraint(Sketcher.Constraint("Perpendicular", 25, 26))
sketch3.addConstraint(Sketcher.Constraint("Parallel", 10, 28))
sketch3.addConstraint(Sketcher.Constraint("Perpendicular", 29, 30))
sketch3.addConstraint(Sketcher.Constraint("Parallel", 14, 32))
sketch3.addConstraint(Sketcher.Constraint("Perpendicular", 33, 34))
sketch3.addConstraint(Sketcher.Constraint("Parallel", 18, 36))
sketch3.addConstraint(Sketcher.Constraint("Perpendicular", 37, 38))
sketch3.addConstraint(Sketcher.Constraint("Horizontal", 22, 2, 23, 1))
sketch3.addConstraint(Sketcher.Constraint("Equal", 4, 6))
sketch3.addConstraint(Sketcher.Constraint("Equal", 6, 8))
sketch3.addConstraint(Sketcher.Constraint("Equal", 5, 9))
sketch3.addConstraint(Sketcher.Constraint("Equal", 8, 10))
sketch3.addConstraint(Sketcher.Constraint("DistanceX", 1, 1, 1, 2, Q("8 mm")))
sketch3.addConstraint(Sketcher.Constraint("Angle", 4, Q("126 deg")))
sketch3.addConstraint(Sketcher.Constraint("Angle", 8, Q("162 deg")))
sketch3.addConstraint(Sketcher.Constraint("Distance", 5, Q("8 mm")))
sketch3.addConstraint(Sketcher.Constraint("Radius", 3, Q("25.399955 mm")))
sketch3.addConstraint(Sketcher.Constraint("DistanceX", -1, 1, 4, 2, Q("7.5823 mm")))
sketch3.addConstraint(Sketcher.Constraint("DistanceY", 7, 1, 5, 2, Q("10.104699 mm")))
sketch3.addConstraint(Sketcher.Constraint("DistanceY", 5, 2, 10, 2, Q("8.592199 mm")))
sketch3.addConstraint(Sketcher.Constraint("DistanceY", 23, 3, 17, 2, Q("17.241301 mm")))
sketch3.addConstraint(Sketcher.Constraint("DistanceY", 0, 1, 0, 2, Q("6.677755 mm")))
sketch3.addConstraint(Sketcher.Constraint("DistanceX", -1, 1, 8, 2, Q("16.268419 mm")))
sketch3.addConstraint(Sketcher.Constraint("DistanceY", 8, 2, -1, 1, Q("9.491779 mm")))
pocket2 = body.newObject("PartDesign::Pocket", "Pocket001")
pocket2.Profile = sketch3
pocket2.Type = "ThroughAll"
pocket2.Reversed = True

doc.recompute()
